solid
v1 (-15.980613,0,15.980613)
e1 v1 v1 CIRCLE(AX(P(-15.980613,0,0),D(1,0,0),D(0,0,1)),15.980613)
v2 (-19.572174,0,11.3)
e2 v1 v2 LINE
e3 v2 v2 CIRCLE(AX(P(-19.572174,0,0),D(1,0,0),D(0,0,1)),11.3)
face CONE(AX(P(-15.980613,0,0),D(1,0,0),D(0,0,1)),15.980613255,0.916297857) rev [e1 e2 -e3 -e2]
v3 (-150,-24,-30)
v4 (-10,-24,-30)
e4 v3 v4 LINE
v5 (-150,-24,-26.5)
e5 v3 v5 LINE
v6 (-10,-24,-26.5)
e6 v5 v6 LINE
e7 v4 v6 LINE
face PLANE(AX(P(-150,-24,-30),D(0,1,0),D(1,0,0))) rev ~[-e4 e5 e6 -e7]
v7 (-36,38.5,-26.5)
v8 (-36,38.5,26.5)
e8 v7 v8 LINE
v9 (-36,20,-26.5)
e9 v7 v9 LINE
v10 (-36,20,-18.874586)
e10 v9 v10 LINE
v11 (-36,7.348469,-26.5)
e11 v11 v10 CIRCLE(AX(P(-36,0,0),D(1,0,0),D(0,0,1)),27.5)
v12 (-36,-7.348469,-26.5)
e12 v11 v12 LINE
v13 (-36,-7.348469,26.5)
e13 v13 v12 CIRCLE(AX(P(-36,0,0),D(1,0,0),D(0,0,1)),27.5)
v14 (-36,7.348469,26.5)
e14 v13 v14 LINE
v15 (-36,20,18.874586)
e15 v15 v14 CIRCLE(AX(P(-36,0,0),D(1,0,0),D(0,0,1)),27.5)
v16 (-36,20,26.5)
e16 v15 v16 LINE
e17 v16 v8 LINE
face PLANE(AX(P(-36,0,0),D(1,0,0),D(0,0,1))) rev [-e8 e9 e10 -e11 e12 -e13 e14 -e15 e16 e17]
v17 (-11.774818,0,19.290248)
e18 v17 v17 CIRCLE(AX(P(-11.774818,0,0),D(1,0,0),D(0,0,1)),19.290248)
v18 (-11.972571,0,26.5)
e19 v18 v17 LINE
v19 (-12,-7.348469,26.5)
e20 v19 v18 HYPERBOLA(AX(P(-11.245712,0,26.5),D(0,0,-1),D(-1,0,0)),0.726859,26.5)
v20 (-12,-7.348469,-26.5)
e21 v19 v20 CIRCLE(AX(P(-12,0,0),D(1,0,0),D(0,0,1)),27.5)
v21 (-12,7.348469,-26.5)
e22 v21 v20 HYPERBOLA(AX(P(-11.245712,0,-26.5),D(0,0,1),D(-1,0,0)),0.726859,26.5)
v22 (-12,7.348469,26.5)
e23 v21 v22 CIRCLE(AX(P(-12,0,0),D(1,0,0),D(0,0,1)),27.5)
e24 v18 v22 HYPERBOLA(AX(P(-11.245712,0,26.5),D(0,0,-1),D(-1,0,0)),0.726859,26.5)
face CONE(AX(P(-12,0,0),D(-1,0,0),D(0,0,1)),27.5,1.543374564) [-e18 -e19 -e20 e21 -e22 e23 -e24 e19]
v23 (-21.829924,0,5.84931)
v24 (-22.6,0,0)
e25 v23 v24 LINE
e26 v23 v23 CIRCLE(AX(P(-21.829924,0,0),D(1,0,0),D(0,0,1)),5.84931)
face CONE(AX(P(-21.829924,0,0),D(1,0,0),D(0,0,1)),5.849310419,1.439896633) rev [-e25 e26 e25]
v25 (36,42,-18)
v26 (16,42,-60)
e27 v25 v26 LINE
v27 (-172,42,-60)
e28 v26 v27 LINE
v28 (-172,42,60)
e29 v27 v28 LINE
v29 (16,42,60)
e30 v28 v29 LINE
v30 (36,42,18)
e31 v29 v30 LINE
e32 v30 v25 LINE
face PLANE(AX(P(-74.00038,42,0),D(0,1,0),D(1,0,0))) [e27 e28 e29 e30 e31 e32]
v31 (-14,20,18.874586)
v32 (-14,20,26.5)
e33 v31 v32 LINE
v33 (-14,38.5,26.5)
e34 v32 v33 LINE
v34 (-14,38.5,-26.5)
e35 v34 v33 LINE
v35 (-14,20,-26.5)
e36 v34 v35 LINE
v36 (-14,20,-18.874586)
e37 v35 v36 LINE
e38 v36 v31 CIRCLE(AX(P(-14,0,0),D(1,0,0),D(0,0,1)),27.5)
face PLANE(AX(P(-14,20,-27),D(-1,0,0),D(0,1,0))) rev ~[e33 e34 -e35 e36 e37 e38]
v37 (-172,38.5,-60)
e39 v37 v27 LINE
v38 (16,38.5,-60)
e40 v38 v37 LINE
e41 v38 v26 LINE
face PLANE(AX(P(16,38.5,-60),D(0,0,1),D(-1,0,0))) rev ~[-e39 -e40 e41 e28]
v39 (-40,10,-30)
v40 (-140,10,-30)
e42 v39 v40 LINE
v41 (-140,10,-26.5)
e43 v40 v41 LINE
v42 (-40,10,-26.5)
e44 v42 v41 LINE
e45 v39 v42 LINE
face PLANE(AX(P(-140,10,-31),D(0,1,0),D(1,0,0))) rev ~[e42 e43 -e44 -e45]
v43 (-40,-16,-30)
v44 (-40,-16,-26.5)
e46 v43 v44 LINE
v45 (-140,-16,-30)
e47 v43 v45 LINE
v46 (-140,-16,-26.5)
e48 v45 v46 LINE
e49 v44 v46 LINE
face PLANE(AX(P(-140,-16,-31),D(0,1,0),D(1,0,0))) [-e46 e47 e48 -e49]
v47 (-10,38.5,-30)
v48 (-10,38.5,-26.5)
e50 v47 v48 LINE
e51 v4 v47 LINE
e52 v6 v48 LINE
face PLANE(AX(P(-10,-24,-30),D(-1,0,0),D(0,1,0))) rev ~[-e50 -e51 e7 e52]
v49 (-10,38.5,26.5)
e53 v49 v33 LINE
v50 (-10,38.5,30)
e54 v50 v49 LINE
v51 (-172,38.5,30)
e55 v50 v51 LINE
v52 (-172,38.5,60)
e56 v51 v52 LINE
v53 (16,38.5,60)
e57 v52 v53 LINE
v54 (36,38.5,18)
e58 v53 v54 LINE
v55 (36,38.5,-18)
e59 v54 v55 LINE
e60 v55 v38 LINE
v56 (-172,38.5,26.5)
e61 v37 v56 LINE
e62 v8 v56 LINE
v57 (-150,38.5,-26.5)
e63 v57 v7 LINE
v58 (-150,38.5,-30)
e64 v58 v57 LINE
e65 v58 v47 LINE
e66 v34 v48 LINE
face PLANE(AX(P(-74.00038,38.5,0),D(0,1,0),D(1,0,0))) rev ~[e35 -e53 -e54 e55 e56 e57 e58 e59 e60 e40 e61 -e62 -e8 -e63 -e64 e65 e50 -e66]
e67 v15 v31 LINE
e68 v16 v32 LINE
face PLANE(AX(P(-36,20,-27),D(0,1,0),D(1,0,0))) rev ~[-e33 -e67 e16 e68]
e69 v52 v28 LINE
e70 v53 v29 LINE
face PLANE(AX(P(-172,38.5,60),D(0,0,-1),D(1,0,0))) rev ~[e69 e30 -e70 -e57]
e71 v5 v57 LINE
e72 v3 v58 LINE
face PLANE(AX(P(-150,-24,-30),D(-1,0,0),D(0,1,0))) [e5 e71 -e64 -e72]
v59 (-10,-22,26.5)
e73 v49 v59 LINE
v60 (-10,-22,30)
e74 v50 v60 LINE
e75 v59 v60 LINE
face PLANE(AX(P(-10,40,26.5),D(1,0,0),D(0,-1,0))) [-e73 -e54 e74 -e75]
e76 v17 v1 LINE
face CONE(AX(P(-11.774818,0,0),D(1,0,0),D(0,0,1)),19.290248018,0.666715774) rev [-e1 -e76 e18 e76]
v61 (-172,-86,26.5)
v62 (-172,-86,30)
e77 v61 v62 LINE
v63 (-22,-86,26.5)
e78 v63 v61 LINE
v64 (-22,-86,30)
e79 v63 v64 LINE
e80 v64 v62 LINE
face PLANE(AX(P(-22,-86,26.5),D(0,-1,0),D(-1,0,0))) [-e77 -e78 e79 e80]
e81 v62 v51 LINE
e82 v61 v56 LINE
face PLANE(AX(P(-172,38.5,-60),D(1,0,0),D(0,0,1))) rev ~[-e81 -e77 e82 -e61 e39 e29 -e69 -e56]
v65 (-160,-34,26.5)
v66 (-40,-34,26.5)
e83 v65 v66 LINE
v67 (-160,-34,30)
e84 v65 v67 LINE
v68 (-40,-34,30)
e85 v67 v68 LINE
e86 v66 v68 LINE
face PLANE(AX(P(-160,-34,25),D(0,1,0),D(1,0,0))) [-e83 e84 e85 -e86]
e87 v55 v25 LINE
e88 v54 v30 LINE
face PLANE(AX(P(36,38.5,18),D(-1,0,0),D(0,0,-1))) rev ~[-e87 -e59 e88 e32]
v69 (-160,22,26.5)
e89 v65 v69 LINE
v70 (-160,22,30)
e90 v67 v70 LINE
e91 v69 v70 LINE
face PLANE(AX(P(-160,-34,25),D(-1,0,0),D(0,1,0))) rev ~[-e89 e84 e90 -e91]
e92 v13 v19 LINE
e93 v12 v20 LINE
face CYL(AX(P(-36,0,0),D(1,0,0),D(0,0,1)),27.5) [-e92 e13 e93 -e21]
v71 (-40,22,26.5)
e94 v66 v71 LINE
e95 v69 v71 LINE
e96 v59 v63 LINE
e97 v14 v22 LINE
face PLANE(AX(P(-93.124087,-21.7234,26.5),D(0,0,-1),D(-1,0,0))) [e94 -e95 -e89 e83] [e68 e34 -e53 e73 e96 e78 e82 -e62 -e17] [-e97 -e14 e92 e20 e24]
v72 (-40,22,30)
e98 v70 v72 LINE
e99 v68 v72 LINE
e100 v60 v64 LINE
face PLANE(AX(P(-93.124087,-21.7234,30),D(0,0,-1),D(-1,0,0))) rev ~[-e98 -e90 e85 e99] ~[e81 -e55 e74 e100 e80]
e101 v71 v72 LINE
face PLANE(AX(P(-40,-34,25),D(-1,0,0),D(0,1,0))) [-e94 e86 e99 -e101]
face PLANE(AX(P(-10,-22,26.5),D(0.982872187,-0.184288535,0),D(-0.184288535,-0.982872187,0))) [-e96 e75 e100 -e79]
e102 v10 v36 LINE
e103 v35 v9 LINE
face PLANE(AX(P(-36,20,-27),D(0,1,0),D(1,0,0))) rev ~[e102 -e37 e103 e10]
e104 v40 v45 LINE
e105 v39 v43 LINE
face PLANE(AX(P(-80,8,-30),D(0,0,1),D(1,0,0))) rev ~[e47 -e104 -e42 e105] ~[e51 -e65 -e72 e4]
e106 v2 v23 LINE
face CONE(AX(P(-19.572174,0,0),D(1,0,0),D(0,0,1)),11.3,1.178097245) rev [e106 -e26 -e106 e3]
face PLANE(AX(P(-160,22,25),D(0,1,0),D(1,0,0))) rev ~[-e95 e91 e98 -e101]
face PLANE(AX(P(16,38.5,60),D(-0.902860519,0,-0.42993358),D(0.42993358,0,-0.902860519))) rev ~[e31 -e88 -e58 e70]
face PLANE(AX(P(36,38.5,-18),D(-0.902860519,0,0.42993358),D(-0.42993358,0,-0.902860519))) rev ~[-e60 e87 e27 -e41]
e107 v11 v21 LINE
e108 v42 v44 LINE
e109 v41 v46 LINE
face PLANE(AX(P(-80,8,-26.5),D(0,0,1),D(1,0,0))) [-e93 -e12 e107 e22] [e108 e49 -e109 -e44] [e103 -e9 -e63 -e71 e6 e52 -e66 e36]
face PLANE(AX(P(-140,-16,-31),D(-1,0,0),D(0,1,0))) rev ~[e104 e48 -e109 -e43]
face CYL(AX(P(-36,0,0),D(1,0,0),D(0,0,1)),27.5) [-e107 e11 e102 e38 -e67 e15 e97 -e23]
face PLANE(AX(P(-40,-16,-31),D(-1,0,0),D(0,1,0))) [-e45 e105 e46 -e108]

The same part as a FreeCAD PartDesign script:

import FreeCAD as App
import Part
import Sketcher
from FreeCAD import Vector
Q = App.Units.Quantity


def add_polygon(sketch, points):
    """Adds a closed chain of lines whose ends are joined by coincident constraints."""
    first, n = sketch.GeometryCount, len(points)
    for a, b in zip(points, points[1:] + points[:1]):
        sketch.addGeometry(Part.LineSegment(App.Vector(*a, 0), App.Vector(*b, 0)), False)
    for i in range(n):
        sketch.addConstraint(Sketcher.Constraint("Coincident", first + i, 2, first + (i + 1) % n, 1))

doc = App.newDocument("Part")
params = doc.addObject("Spreadsheet::Sheet", "Params")
for row, (alias, value) in enumerate([
    ("sketch1_width", "188 mm"),
    ("sketch1_height", "36 mm"),
    ("sketch1_height2", "120 mm"),
    ("pad1_length", "3.5 mm"),
    ("sketch2_width", "162 mm"),
    ("sketch2_width2", "150 mm"),
    ("sketch2_height", "126 mm"),
    ("sketch2_height2", "62 mm"),
    ("pad2_length", "3.5 mm"),
    ("sketch3_width", "140 mm"),
    ("sketch3_height", "64 mm"),
    ("pad3_length", "3.5 mm"),
    ("sketch4_width", "22 mm"),
    ("sketch4_height", "20 mm"),
    ("pad4_length", "54 mm"),
    ("sketch5_width", "24 mm"),
    ("sketch5_width2", "13.4 mm"),
    ("sketch5_height", "27.5 mm"),
    ("revolution_angle", "360 deg"),
    ("sketch6_width", "120 mm"),
    ("sketch6_height", "56 mm"),
    ("pocket1_length", "6 mm"),
    ("sketch7_width", "100 mm"),
    ("sketch7_height", "26 mm"),
    ("pocket2_length", "6 mm"),
], start=1):
    params.set(f"A{row}", alias)
    params.set(f"B{row}", "=" + value)
    params.setAlias(f"B{row}", alias)

body = doc.addObject("PartDesign::Body", "Body")

sketch1 = body.newObject("Sketcher::SketchObject", "Sketch")
sketch1.AttachmentSupport = (doc.getObject("XZ_Plane"), [""])
sketch1.MapMode = "FlatFace"
sketch1.AttachmentOffset = App.Placement(Vector(0, 0, -38.5), App.Rotation())
add_polygon(sketch1, [(-172, 60), (16, 60), (36, 18), (36, -18), (16, -60), (-172, -60)])
sketch1.addConstraint(Sketcher.Constraint("Horizontal", 0))
sketch1.addConstraint(Sketcher.Constraint("Vertical", 2))
sketch1.addConstraint(Sketcher.Constraint("Horizontal", 4))
sketch1.addConstraint(Sketcher.Constraint("Vertical", 5))
sketch1.addConstraint(Sketcher.Constraint("Symmetric", 0, 2, 3, 2, -1))
sketch1.addConstraint(Sketcher.Constraint("Equal", 1, 3))
sketch1.addConstraint(Sketcher.Constraint("DistanceX", 0, 1, 0, 2, Q("188 mm")))
sketch1.addConstraint(Sketcher.Constraint("DistanceY", 2, 2, 2, 1, Q("36 mm")))
sketch1.addConstraint(Sketcher.Constraint("DistanceY", 5, 1, 5, 2, Q("120 mm")))
sketch1.addConstraint(Sketcher.Constraint("DistanceX", -1, 1, 0, 2, Q("16 mm")))
sketch1.addConstraint(Sketcher.Constraint("DistanceX", -1, 1, 1, 2, Q("36 mm")))
sketch1.setExpression("Constraints[12]", "Params.sketch1_width")
sketch1.setExpression("Constraints[13]", "Params.sketch1_height")
sketch1.setExpression("Constraints[14]", "Params.sketch1_height2")
pad1 = body.newObject("PartDesign::Pad", "Pad")
pad1.Profile = sketch1
pad1.setExpression("Length", "Params.pad1_length")
pad1.Reversed = True

sketch2 = body.newObject("Sketcher::SketchObject", "Sketch001")
sketch2.AttachmentSupport = (doc.getObject("XY_Plane"), [""])
sketch2.MapMode = "FlatFace"
sketch2.AttachmentOffset = App.Placement(Vector(0, 0, 26.5), App.Rotation())
add_polygon(sketch2, [(-10, 40), (-172, 40), (-172, -86), (-22, -86), (-10, -22)])
sketch2.addConstraint(Sketcher.Constraint("Horizontal", 0))
sketch2.addConstraint(Sketcher.Constraint("Vertical", 1))
sketch2.addConstraint(Sketcher.Constraint("Horizontal", 2))
sketch2.addConstraint(Sketcher.Constraint("Vertical", 4))
sketch2.addConstraint(Sketcher.Constraint("DistanceX", 0, 2, 0, 1, Q("162 mm")))
sketch2.addConstraint(Sketcher.Constraint("DistanceX", 2, 1, 2, 2, Q("150 mm")))
sketch2.addConstraint(Sketcher.Constraint("DistanceY", 1, 2, 1, 1, Q("126 mm")))
sketch2.addConstraint(Sketcher.Constraint("DistanceY", 4, 1, 4, 2, Q("62 mm")))
sketch2.addConstraint(Sketcher.Constraint("DistanceX", 0, 2, -1, 1, Q("172 mm")))
sketch2.addConstraint(Sketcher.Constraint("DistanceY", -1, 1, 0, 2, Q("40 mm")))
sketch2.setExpression("Constraints[9]", "Params.sketch2_width")
sketch2.setExpression("Constraints[10]", "Params.sketch2_width2")
sketch2.setExpression("Constraints[11]", "Params.sketch2_height")
sketch2.setExpression("Constraints[12]", "Params.sketch2_height2")
pad2 = body.newObject("PartDesign::Pad", "Pad001")
pad2.Profile = sketch2
pad2.setExpression("Length", "Params.pad2_length")

sketch3 = body.newObject("Sketcher::SketchObject", "Sketch002")
sketch3.AttachmentSupport = (doc.getObject("XY_Plane"), [""])
sketch3.MapMode = "FlatFace"
sketch3.AttachmentOffset = App.Placement(Vector(0, 0, -30), App.Rotation())
add_polygon(sketch3, [(-150, 40), (-150, -24), (-10, -24), (-10, 40)])
sketch3.addConstraint(Sketcher.Constraint("Vertical", 0))
sketch3.addConstraint(Sketcher.Constraint("Horizontal", 1))
sketch3.addConstraint(Sketcher.Constraint("Vertical", 2))
sketch3.addConstraint(Sketcher.Constraint("Horizontal", 3))
sketch3.addConstraint(Sketcher.Constraint("DistanceX", 1, 1, 1, 2, Q("140 mm")))
sketch3.addConstraint(Sketcher.Constraint("DistanceY", 0, 2, 0, 1, Q("64 mm")))
sketch3.addConstraint(Sketcher.Constraint("DistanceX", 0, 2, -1, 1, Q("150 mm")))
sketch3.addConstraint(Sketcher.Constraint("DistanceY", 0, 2, -1, 1, Q("24 mm")))
sketch3.setExpression("Constraints[8]", "Params.sketch3_width")
sketch3.setExpression("Constraints[9]", "Params.sketch3_height")
pad3 = body.newObject("PartDesign::Pad", "Pad002")
pad3.Profile = sketch3
pad3.setExpression("Length", "Params.pad3_length")

sketch4 = body.newObject("Sketcher::SketchObject", "Sketch003")
sketch4.AttachmentSupport = (doc.getObject("XY_Plane"), [""])
sketch4.MapMode = "FlatFace"
sketch4.AttachmentOffset = App.Placement(Vector(0, 0, -27), App.Rotation())
add_polygon(sketch4, [(-36, 40), (-36, 20), (-14, 20), (-14, 40)])
sketch4.addConstraint(Sketcher.Constraint("Vertical", 0))
sketch4.addConstraint(Sketcher.Constraint("Horizontal", 1))
sketch4.addConstraint(Sketcher.Constraint("Vertical", 2))
sketch4.addConstraint(Sketcher.Constraint("Horizontal", 3))
sketch4.addConstraint(Sketcher.Constraint("DistanceX", 1, 1, 1, 2, Q("22 mm")))
sketch4.addConstraint(Sketcher.Constraint("DistanceY", 0, 2, 0, 1, Q("20 mm")))
sketch4.addConstraint(Sketcher.Constraint("DistanceX", 0, 2, -1, 1, Q("36 mm")))
sketch4.addConstraint(Sketcher.Constraint("DistanceY", -1, 1, 0, 2, Q("20 mm")))
sketch4.setExpression("Constraints[8]", "Params.sketch4_width")
sketch4.setExpression("Constraints[9]", "Params.sketch4_height")
pad4 = body.newObject("PartDesign::Pad", "Pad003")
pad4.Profile = sketch4
pad4.setExpression("Length", "Params.pad4_length")

sketch5 = body.newObject("Sketcher::SketchObject", "Sketch004")
sketch5.AttachmentSupport = (doc.getObject("XY_Plane"), [""])
sketch5.MapMode = "FlatFace"
add_polygon(sketch5, [(-36, 28), (-36, 0), (-23, 0), (-22, 6), (-20, 11), (-16, 16), (-12, 19), (-12, 28)])
sketch5.addConstraint(Sketcher.Constraint("Vertical", 0))
sketch5.addConstraint(Sketcher.Constraint("Horizontal", 1))
sketch5.addConstraint(Sketcher.Constraint("Horizontal", 7))
sketch5.addConstraint(Sketcher.Constraint("PointOnObject", 0, 2, -1))
sketch5.addConstraint(Sketcher.Constraint("Equal", 2, 3))
sketch5.addConstraint(Sketcher.Constraint("Equal", 3, 4))
sketch5.addConstraint(Sketcher.Constraint("DistanceX", 7, 2, 7, 1, Q("24 mm")))
sketch5.addConstraint(Sketcher.Constraint("DistanceX", 1, 1, 1, 2, Q("13.4 mm")))
sketch5.addConstraint(Sketcher.Constraint("DistanceY", 0, 2, 0, 1, Q("27.5 mm")))
sketch5.addConstraint(Sketcher.Constraint("DistanceX", 0, 2, -1, 1, Q("36 mm")))
sketch5.addConstraint(Sketcher.Constraint("Angle", 2, Q("82.5 deg")))
sketch5.addConstraint(Sketcher.Constraint("Angle", 3, Q("67.5 deg")))
sketch5.addConstraint(Sketcher.Constraint("Angle", 4, Q("52.5 deg")))
sketch5.addConstraint(Sketcher.Constraint("Angle", 5, Q("38.2 deg")))
sketch5.addConstraint(Sketcher.Constraint("DistanceY", -1, 1, 3, 2, Q("11.3 mm")))
sketch5.addConstraint(Sketcher.Constraint("Distance", 5, Q("5.351859 mm")))
sketch5.setExpression("Constraints[14]", "Params.sketch5_width")
sketch5.setExpression("Constraints[15]", "Params.sketch5_width2")
sketch5.setExpression("Constraints[16]", "Params.sketch5_height")
revolution = body.newObject("PartDesign::Revolution", "Revolution")
revolution.Profile = sketch5
revolution.ReferenceAxis = (sketch5, ["H_Axis"])
revolution.setExpression("Angle", "Params.revolution_angle")

sketch6 = body.newObject("Sketcher::SketchObject", "Sketch005")
sketch6.AttachmentSupport = (doc.getObject("XY_Plane"), [""])
sketch6.MapMode = "FlatFace"
sketch6.AttachmentOffset = App.Placement(Vector(0, 0, 25), App.Rotation())
add_polygon(sketch6, [(-160, 22), (-160, -34), (-40, -34), (-40, 22)])
sketch6.addConstraint(Sketcher.Constraint("Vertical", 0))
sketch6.addConstraint(Sketcher.Constraint("Horizontal", 1))
sketch6.addConstraint(Sketcher.Constraint("Vertical", 2))
sketch6.addConstraint(Sketcher.Constraint("Horizontal", 3))
sketch6.addConstraint(Sketcher.Constraint("DistanceX", 1, 1, 1, 2, Q("120 mm")))
sketch6.addConstraint(Sketcher.Constraint("DistanceY", 0, 2, 0, 1, Q("56 mm")))
sketch6.addConstraint(Sketcher.Constraint("DistanceX", 0, 2, -1, 1, Q("160 mm")))
sketch6.addConstraint(Sketcher.Constraint("DistanceY", 0, 2, -1, 1, Q("34 mm")))
sketch6.setExpression("Constraints[8]", "Params.sketch6_width")
sketch6.setExpression("Constraints[9]", "Params.sketch6_height")
pocket1 = body.newObject("PartDesign::Pocket", "Pocket")
pocket1.Profile = sketch6
pocket1.setExpression("Length", "Params.pocket1_length")
pocket1.Reversed = True

sketch7 = body.newObject("Sketcher::SketchObject", "Sketch006")
sketch7.AttachmentSupport = (doc.getObject("XY_Plane"), [""])
sketch7.MapMode = "FlatFace"
sketch7.AttachmentOffset = App.Placement(Vector(0, 0, -31), App.Rotation())
add_polygon(sketch7, [(-140, 10), (-140, -16), (-40, -16), (-40, 10)])
sketch7.addConstraint(Sketcher.Constraint("Vertical", 0))
sketch7.addConstraint(Sketcher.Constraint("Horizontal", 1))
sketch7.addConstraint(Sketcher.Constraint("Vertical", 2))
sketch7.addConstraint(Sketcher.Constraint("Horizontal", 3))
sketch7.addConstraint(Sketcher.Constraint("DistanceX", 1, 1, 1, 2, Q("100 mm")))
sketch7.addConstraint(Sketcher.Constraint("DistanceY", 0, 2, 0, 1, Q("26 mm")))
sketch7.addConstraint(Sketcher.Constraint("DistanceX", 0, 2, -1, 1, Q("140 mm")))
sketch7.addConstraint(Sketcher.Constraint("DistanceY", 0, 2, -1, 1, Q("16 mm")))
sketch7.setExpression("Constraints[8]", "Params.sketch7_width")
sketch7.setExpression("Constraints[9]", "Params.sketch7_height")
pocket2 = body.newObject("PartDesign::Pocket", "Pocket001")
pocket2.Profile = sketch7
pocket2.setExpression("Length", "Params.pocket2_length")
pocket2.Reversed = True

doc.recompute()
